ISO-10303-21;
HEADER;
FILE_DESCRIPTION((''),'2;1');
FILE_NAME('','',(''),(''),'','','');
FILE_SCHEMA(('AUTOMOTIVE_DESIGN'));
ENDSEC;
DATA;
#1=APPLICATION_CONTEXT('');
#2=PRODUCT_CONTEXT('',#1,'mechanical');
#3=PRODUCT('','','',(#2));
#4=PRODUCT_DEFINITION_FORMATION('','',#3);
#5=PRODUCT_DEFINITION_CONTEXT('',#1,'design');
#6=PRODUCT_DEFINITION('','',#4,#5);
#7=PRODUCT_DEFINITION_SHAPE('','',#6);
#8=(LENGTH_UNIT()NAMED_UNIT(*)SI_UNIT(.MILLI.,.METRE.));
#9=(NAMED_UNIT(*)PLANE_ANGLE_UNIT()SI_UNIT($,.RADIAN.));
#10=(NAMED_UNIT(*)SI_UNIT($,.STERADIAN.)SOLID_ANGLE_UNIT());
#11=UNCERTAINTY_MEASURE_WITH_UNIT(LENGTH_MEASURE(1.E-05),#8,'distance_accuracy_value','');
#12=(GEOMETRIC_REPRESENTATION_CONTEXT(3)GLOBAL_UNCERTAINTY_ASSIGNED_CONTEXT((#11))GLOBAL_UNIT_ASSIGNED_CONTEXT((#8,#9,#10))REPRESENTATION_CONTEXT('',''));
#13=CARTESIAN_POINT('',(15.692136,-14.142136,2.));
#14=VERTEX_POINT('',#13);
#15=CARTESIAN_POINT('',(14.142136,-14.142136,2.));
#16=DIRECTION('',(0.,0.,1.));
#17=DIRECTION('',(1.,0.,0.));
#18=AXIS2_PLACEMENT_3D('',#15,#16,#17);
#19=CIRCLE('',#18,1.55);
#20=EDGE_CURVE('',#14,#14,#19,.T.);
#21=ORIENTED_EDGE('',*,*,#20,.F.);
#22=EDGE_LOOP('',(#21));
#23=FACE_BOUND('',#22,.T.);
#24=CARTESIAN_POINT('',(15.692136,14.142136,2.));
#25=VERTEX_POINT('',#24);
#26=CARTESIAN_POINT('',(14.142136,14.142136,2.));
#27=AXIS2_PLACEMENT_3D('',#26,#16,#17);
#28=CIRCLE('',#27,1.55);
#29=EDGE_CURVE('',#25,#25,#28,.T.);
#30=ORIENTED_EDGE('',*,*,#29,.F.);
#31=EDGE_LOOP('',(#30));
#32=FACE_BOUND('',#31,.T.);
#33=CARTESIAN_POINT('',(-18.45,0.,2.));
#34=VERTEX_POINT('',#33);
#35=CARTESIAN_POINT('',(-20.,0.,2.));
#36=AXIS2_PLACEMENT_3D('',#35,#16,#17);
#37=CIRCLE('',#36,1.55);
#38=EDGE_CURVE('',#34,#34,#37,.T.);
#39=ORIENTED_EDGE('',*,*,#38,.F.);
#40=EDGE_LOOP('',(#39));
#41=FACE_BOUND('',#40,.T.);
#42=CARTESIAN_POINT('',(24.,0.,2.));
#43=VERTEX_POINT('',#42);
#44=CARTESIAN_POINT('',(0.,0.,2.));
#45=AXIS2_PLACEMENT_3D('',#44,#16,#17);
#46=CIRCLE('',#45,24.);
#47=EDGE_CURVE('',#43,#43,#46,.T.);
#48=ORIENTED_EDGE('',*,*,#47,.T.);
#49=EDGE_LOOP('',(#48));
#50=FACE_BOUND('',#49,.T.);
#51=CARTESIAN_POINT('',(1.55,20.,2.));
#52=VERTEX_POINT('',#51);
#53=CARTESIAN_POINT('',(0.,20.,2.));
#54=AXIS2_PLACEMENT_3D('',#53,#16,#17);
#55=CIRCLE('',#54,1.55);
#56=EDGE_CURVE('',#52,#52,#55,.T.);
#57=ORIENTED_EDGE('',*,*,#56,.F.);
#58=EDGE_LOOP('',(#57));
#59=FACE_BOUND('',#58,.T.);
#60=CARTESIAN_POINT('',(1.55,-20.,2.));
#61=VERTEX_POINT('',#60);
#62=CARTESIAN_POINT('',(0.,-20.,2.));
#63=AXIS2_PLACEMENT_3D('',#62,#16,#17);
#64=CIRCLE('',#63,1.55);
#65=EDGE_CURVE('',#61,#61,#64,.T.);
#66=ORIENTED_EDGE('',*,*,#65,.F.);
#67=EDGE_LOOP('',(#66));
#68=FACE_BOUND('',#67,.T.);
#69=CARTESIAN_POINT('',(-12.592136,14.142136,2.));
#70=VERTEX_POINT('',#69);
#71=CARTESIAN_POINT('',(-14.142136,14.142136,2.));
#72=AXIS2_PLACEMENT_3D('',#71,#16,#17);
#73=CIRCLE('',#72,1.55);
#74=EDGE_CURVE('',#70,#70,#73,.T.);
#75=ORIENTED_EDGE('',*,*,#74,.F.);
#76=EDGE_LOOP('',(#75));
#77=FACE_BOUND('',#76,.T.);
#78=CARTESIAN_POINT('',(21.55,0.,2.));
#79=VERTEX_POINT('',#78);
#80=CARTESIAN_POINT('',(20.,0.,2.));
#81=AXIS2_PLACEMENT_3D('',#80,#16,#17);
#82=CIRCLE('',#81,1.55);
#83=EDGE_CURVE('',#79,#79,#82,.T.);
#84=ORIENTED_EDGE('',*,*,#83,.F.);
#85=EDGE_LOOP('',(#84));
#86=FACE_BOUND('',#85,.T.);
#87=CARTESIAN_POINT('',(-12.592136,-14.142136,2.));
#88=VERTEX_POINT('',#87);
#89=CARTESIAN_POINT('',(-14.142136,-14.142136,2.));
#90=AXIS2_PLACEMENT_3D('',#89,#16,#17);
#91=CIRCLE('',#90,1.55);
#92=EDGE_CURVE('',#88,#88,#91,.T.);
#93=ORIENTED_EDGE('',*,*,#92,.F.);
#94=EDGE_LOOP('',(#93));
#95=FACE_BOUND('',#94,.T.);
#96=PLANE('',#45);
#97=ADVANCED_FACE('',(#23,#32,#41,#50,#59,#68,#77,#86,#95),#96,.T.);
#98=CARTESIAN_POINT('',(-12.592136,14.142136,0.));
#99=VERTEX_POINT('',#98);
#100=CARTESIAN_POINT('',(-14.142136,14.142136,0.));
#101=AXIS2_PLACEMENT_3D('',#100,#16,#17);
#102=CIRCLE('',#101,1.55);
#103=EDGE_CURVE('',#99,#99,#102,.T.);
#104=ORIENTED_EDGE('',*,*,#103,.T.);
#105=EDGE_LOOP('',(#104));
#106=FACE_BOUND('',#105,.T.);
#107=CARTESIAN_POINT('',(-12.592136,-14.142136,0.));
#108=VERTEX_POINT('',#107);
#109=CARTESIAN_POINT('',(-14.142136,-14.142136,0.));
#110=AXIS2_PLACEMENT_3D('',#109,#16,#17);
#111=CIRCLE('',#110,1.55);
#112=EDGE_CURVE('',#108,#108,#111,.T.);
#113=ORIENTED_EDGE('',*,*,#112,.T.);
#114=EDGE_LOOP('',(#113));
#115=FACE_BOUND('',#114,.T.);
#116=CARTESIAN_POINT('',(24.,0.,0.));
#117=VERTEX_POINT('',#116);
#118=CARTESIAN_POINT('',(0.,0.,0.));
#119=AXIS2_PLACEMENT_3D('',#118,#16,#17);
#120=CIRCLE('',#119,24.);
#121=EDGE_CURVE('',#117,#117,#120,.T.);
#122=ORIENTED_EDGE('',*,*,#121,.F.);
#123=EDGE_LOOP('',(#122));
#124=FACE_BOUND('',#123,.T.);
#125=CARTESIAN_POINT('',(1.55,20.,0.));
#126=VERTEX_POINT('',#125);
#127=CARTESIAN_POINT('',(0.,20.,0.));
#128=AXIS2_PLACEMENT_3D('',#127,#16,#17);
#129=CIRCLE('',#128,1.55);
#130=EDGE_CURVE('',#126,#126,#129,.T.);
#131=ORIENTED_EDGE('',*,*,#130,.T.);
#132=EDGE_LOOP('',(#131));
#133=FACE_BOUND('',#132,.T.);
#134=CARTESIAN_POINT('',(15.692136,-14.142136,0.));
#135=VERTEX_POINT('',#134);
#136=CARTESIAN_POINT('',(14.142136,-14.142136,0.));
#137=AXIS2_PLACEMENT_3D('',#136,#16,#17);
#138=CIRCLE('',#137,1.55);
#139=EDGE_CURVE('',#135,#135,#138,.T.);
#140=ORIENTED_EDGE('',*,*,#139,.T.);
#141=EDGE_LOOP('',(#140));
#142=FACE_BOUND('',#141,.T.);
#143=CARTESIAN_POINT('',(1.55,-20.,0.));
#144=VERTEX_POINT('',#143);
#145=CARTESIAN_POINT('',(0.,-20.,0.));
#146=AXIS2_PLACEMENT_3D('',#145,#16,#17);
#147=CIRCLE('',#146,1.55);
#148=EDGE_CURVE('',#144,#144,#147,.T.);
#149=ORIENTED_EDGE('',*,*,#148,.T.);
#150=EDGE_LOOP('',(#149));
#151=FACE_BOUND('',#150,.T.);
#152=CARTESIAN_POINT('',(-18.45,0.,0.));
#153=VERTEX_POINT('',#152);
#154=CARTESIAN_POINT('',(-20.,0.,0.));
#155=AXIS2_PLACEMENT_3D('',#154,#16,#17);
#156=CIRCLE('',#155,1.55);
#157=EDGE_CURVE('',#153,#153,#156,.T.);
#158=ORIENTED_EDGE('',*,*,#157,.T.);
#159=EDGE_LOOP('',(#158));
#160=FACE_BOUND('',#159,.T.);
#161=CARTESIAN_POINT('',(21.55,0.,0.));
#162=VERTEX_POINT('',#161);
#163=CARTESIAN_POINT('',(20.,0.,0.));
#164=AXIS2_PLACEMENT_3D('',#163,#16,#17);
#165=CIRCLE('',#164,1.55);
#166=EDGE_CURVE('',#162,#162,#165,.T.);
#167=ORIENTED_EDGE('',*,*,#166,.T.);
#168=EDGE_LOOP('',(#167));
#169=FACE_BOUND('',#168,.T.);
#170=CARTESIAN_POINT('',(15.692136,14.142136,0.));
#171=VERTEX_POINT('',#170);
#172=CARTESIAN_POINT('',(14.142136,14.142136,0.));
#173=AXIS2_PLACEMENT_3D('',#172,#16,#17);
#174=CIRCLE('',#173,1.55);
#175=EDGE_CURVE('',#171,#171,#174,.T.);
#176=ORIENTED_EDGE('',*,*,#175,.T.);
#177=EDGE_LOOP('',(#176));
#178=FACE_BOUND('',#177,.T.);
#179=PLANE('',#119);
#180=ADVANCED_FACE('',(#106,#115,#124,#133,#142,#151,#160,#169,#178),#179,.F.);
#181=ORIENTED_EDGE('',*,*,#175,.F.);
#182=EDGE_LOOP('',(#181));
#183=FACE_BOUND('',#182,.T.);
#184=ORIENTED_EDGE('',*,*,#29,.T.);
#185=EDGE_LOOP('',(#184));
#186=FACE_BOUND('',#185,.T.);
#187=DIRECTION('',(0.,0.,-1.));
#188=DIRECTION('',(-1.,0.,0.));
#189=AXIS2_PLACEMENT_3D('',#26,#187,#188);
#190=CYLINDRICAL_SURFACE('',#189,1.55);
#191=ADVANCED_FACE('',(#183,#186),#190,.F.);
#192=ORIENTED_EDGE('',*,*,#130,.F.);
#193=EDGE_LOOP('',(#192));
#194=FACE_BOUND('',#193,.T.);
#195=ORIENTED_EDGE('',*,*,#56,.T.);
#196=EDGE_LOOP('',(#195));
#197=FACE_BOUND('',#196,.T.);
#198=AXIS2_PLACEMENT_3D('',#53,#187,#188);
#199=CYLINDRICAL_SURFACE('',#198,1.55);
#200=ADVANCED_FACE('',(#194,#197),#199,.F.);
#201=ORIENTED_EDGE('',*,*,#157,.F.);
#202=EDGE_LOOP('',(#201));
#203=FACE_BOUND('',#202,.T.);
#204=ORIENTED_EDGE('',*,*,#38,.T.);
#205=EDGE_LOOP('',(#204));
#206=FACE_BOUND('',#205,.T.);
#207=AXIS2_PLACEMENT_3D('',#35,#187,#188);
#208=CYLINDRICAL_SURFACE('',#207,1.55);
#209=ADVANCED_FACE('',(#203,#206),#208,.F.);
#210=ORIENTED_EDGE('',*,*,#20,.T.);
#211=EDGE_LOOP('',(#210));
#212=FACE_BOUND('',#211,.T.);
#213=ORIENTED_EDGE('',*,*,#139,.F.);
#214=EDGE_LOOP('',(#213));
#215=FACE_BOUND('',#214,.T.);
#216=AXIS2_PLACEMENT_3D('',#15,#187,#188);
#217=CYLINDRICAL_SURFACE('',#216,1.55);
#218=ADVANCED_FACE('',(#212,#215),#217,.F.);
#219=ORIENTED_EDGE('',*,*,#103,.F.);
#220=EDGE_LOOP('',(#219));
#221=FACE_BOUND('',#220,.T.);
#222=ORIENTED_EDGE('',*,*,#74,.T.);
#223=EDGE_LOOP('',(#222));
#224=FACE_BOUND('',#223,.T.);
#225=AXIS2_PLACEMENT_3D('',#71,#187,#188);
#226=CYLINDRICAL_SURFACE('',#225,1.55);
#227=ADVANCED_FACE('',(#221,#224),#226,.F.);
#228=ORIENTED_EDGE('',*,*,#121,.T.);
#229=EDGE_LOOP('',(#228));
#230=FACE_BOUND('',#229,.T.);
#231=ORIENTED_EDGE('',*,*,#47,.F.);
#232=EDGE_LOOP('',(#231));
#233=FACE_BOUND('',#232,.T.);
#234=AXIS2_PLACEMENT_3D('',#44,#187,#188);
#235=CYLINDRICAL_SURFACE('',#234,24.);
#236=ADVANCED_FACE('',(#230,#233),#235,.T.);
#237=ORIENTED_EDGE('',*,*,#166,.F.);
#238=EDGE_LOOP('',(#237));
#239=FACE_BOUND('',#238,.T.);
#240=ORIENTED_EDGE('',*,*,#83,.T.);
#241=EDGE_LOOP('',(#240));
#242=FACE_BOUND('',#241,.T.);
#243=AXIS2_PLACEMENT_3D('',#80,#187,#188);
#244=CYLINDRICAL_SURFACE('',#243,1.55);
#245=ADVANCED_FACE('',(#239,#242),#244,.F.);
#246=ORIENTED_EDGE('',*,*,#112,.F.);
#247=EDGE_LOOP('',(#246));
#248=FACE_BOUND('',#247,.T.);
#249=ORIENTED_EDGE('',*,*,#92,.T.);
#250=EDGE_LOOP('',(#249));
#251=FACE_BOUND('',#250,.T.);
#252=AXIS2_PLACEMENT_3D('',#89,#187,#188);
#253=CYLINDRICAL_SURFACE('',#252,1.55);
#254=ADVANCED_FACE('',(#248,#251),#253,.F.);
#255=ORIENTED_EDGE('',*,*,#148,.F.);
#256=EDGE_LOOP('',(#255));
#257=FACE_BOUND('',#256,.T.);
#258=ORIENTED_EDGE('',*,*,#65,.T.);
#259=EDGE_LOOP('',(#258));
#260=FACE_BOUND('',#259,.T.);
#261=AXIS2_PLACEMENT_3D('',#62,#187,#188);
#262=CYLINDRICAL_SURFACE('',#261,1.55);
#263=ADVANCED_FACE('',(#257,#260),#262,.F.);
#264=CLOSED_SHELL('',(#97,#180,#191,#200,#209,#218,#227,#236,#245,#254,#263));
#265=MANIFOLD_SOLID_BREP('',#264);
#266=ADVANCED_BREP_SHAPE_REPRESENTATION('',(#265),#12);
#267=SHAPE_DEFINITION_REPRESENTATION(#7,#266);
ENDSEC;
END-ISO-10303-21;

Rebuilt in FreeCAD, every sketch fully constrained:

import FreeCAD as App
import Part
import Sketcher

V = App.Vector
Q = App.Units.Quantity

doc = App.newDocument("Part")
params = doc.addObject("Spreadsheet::Sheet", "Params")
for row, (alias, value) in enumerate([
    ("sketch1_diameter", "48 mm"),
    ("sketch1_diameter2", "3.1 mm"),
    ("pad1_length", "2 mm"),
], start=1):
    params.set(f"A{row}", alias)
    params.set(f"B{row}", "=" + value)
    params.setAlias(f"B{row}", alias)

body = doc.addObject("PartDesign::Body", "Body")

# Sketch on XY plane
sketch1 = body.newObject("Sketcher::SketchObject", "Sketch")
sketch1.AttachmentSupport = (doc.getObject("XY_Plane"), [""])
sketch1.MapMode = "FlatFace"
sketch1.addGeometry(Part.Circle(V(0, 0, 0), V(0, 0, 1), 24), False)
sketch1.addGeometry(Part.Circle(V(-14.1, -14.1, 0), V(0, 0, 1), 1.6), False)
sketch1.addGeometry(Part.Circle(V(0, -20, 0), V(0, 0, 1), 1.6), False)
sketch1.addGeometry(Part.Circle(V(14.1, -14.1, 0), V(0, 0, 1), 1.6), False)
sketch1.addGeometry(Part.Circle(V(-20, 0, 0), V(0, 0, 1), 1.6), False)
sketch1.addGeometry(Part.Circle(V(-14.1, 14.1, 0), V(0, 0, 1), 1.6), False)
sketch1.addGeometry(Part.Circle(V(20, 0, 0), V(0, 0, 1), 1.6), False)
sketch1.addGeometry(Part.Circle(V(0, 20, 0), V(0, 0, 1), 1.6), False)
sketch1.addGeometry(Part.Circle(V(14.1, 14.1, 0), V(0, 0, 1), 1.6), False)
sketch1.addConstraint(Sketcher.Constraint("Coincident", 0, 3, -1, 1))
sketch1.addConstraint(Sketcher.Constraint("Equal", 1, 2))
sketch1.addConstraint(Sketcher.Constraint("Equal", 2, 3))
sketch1.addConstraint(Sketcher.Constraint("Equal", 3, 4))
sketch1.addConstraint(Sketcher.Constraint("Equal", 4, 5))
sketch1.addConstraint(Sketcher.Constraint("Equal", 5, 6))
sketch1.addConstraint(Sketcher.Constraint("Equal", 6, 7))
sketch1.addConstraint(Sketcher.Constraint("Equal", 7, 8))
sketch1.addConstraint(Sketcher.Constraint("Symmetric", 3, 3, 5, 3, -1, 1))
sketch1.addConstraint(Sketcher.Constraint("Symmetric", 4, 3, 6, 3, -1, 1))
sketch1.addConstraint(Sketcher.Constraint("Symmetric", 2, 3, 7, 3, -1, 1))
sketch1.addConstraint(Sketcher.Constraint("Symmetric", 1, 3, 8, 3, -1, 1))
sketch1.addConstraint(Sketcher.Constraint("Symmetric", 1, 3, 3, 3, -2))
sketch1.addConstraint(Sketcher.Constraint("PointOnObject", 2, 3, -2))
sketch1.addConstraint(Sketcher.Constraint("PointOnObject", 4, 3, -1))
sketch1.addConstraint(Sketcher.Constraint("Diameter", 0, Q("48 mm")))
sketch1.addConstraint(Sketcher.Constraint("Diameter", 1, Q("3.1 mm")))
sketch1.addConstraint(Sketcher.Constraint("DistanceY", 2, 3, -1, 1, Q("20 mm")))
sketch1.addConstraint(Sketcher.Constraint("DistanceX", 4, 3, -1, 1, Q("20 mm")))
sketch1.addConstraint(Sketcher.Constraint("DistanceX", 1, 3, 3, 3, Q("28.284271 mm")))
sketch1.addConstraint(Sketcher.Constraint("DistanceY", 1, 3, 5, 3, Q("28.284271 mm")))
sketch1.setExpression("Constraints[15]", "Params.sketch1_diameter")
sketch1.setExpression("Constraints[16]", "Params.sketch1_diameter2")
pad1 = body.newObject("PartDesign::Pad", "Pad")
pad1.Profile = sketch1
pad1.setExpression("Length", "Params.pad1_length")

doc.recompute()
